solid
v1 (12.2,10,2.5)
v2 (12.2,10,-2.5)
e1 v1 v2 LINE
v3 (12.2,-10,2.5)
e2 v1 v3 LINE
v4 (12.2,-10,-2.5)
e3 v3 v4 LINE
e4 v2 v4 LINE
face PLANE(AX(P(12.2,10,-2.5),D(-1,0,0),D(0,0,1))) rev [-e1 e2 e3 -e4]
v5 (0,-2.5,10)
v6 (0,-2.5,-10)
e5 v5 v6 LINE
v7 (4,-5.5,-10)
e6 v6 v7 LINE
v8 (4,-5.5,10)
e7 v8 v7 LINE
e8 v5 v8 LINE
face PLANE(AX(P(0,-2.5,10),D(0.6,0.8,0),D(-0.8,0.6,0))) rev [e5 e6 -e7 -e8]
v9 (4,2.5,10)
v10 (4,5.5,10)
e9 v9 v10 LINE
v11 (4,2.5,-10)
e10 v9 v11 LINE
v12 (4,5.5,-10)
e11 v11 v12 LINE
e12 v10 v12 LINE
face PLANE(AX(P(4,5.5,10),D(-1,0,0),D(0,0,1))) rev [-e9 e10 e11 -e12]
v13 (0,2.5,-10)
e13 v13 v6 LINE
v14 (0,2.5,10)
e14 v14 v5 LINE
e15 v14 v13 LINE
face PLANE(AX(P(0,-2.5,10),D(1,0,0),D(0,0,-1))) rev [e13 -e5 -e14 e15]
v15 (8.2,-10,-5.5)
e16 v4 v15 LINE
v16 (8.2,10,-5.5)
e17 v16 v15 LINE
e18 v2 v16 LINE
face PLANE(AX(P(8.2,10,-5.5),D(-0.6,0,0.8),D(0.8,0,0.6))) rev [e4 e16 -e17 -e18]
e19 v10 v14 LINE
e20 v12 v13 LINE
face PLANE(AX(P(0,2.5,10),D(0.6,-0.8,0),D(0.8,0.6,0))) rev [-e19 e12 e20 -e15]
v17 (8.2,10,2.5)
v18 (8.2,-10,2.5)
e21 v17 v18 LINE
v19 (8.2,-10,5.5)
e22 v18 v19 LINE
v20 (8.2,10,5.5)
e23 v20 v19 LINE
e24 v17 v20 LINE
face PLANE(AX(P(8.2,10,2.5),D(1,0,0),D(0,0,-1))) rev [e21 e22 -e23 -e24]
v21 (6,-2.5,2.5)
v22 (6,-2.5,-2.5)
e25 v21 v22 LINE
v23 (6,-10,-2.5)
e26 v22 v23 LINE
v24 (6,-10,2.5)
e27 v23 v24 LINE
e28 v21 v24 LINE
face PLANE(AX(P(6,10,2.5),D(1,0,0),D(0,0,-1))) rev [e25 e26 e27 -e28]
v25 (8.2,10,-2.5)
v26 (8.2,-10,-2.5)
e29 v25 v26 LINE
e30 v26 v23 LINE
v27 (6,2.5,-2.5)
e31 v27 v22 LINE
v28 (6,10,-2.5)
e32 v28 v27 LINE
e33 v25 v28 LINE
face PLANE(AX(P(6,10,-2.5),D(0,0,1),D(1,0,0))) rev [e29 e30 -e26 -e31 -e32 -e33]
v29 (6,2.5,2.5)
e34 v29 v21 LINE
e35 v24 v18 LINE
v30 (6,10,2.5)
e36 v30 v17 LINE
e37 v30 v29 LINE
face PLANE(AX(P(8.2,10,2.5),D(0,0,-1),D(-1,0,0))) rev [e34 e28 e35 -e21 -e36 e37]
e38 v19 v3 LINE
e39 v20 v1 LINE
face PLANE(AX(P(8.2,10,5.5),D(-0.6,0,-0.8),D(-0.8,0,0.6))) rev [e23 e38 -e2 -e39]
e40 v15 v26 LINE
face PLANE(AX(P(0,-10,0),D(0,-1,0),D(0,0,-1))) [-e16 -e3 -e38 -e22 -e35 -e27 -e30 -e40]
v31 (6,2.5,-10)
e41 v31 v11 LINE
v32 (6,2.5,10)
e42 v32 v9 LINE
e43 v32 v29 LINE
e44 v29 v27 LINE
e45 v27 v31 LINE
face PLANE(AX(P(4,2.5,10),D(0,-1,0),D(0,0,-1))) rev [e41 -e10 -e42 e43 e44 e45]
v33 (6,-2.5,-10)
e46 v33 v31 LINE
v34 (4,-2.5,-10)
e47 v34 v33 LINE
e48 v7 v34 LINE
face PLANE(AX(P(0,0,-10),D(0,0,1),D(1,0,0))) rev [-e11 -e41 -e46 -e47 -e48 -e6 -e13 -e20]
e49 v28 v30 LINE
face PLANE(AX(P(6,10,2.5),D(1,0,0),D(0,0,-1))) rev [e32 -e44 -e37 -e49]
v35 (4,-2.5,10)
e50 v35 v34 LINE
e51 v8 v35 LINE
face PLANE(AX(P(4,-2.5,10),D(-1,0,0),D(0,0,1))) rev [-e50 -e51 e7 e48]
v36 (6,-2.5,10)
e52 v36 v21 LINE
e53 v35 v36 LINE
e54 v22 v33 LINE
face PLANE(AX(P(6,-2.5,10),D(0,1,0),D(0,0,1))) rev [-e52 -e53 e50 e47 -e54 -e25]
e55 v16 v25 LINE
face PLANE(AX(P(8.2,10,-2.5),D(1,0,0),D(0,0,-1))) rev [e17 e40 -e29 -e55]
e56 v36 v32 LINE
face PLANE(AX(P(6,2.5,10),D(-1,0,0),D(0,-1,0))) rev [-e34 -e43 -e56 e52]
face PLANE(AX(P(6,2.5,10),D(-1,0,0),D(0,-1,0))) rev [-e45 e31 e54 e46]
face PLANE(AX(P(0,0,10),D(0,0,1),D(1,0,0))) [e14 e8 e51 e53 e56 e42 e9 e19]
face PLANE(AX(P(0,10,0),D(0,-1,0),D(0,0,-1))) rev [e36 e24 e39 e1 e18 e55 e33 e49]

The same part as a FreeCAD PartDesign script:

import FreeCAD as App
import Part
import Sketcher
Q = App.Units.Quantity

doc = App.newDocument("Part")
params = doc.addObject("Spreadsheet::Sheet", "Params")
for row, (alias, value) in enumerate([
    ("sketch1_width", "2 mm"),
    ("sketch1_height", "5 mm"),
    ("sketch1_height2", "3 mm"),
    ("sketch1_length", "5 mm"),
    ("pad1_length", "20 mm"),
    ("sketch2_height", "5 mm"),
    ("sketch2_height2", "3 mm"),
    ("sketch2_length", "5 mm"),
    ("sketch2_width", "2.2 mm"),
    ("pad2_length", "20 mm"),
], start=1):
    params.set(f"A{row}", alias)
    params.set(f"B{row}", "=" + value)
    params.setAlias(f"B{row}", alias)

body = doc.addObject("PartDesign::Body", "Body")

# Sketch on XY plane
sketch1 = body.newObject("Sketcher::SketchObject", "Sketch")
sketch1.AttachmentSupport = (doc.getObject("XY_Plane"), [""])
sketch1.MapMode = "FlatFace"
sketch1.addGeometry([
    Part.LineSegment(App.Vector(0, 2.5, 0), App.Vector(0, -2.5, 0)),  # 0
    Part.LineSegment(App.Vector(0, -2.5, 0), App.Vector(4, -5.5, 0)),  # 1
    Part.LineSegment(App.Vector(4, -5.5, 0), App.Vector(4, -2.5, 0)),  # 2
    Part.LineSegment(App.Vector(4, -2.5, 0), App.Vector(6, -2.5, 0)),  # 3
    Part.LineSegment(App.Vector(6, -2.5, 0), App.Vector(6, 2.5, 0)),  # 4
    Part.LineSegment(App.Vector(6, 2.5, 0), App.Vector(4, 2.5, 0)),  # 5
    Part.LineSegment(App.Vector(4, 2.5, 0), App.Vector(4, 5.5, 0)),  # 6
    Part.LineSegment(App.Vector(4, 5.5, 0), App.Vector(0, 2.5, 0)),  # 7
], False)
sketch1.addConstraint([
    Sketcher.Constraint("Coincident", 0, 2, 1, 1),
    Sketcher.Constraint("Coincident", 1, 2, 2, 1),
    Sketcher.Constraint("Coincident", 2, 2, 3, 1),
    Sketcher.Constraint("Coincident", 3, 2, 4, 1),
    Sketcher.Constraint("Coincident", 4, 2, 5, 1),
    Sketcher.Constraint("Coincident", 5, 2, 6, 1),
    Sketcher.Constraint("Coincident", 6, 2, 7, 1),
    Sketcher.Constraint("Coincident", 7, 2, 0, 1),
    Sketcher.Constraint("Vertical", 0),
    Sketcher.Constraint("Vertical", 2),
    Sketcher.Constraint("Horizontal", 3),
    Sketcher.Constraint("Vertical", 4),
    Sketcher.Constraint("Horizontal", 5),
    Sketcher.Constraint("Vertical", 6),
    Sketcher.Constraint("Symmetric", 0, 2, 7, 2, -1, 1),
    Sketcher.Constraint("Symmetric", 2, 2, 5, 2, -1),
    Sketcher.Constraint("Horizontal", 0, 2, 2, 2),
    Sketcher.Constraint("Equal", 2, 6),
    Sketcher.Constraint("DistanceX", 3, 1, 3, 2, Q("2 mm")),
    Sketcher.Constraint("DistanceY", 0, 2, 0, 1, Q("5 mm")),
    Sketcher.Constraint("DistanceY", 2, 1, 2, 2, Q("3 mm")),
    Sketcher.Constraint("Distance", 1, Q("5 mm")),
])
sketch1.setExpression("Constraints[18]", "Params.sketch1_width")
sketch1.setExpression("Constraints[19]", "Params.sketch1_height")
sketch1.setExpression("Constraints[20]", "Params.sketch1_height2")
sketch1.setExpression("Constraints[21]", "Params.sketch1_length")
pad1 = body.newObject("PartDesign::Pad", "Pad")
pad1.Profile = sketch1
pad1.setExpression("Length", "Params.pad1_length")
pad1.Midplane = True

# Sketch on XZ plane
sketch2 = body.newObject("Sketcher::SketchObject", "Sketch001")
sketch2.AttachmentSupport = (doc.getObject("XZ_Plane"), [""])
sketch2.MapMode = "FlatFace"
sketch2.addGeometry([
    Part.LineSegment(App.Vector(8.2, -2.5, 0), App.Vector(6, -2.5, 0)),  # 0
    Part.LineSegment(App.Vector(6, -2.5, 0), App.Vector(6, 2.5, 0)),  # 1
    Part.LineSegment(App.Vector(6, 2.5, 0), App.Vector(8.2, 2.5, 0)),  # 2
    Part.LineSegment(App.Vector(8.2, 2.5, 0), App.Vector(8.2, 5.5, 0)),  # 3
    Part.LineSegment(App.Vector(8.2, 5.5, 0), App.Vector(12.2, 2.5, 0)),  # 4
    Part.LineSegment(App.Vector(12.2, 2.5, 0), App.Vector(12.2, -2.5, 0)),  # 5
    Part.LineSegment(App.Vector(12.2, -2.5, 0), App.Vector(8.2, -5.5, 0)),  # 6
    Part.LineSegment(App.Vector(8.2, -5.5, 0), App.Vector(8.2, -2.5, 0)),  # 7
], False)
sketch2.addConstraint([
    Sketcher.Constraint("Coincident", 0, 2, 1, 1),
    Sketcher.Constraint("Coincident", 1, 2, 2, 1),
    Sketcher.Constraint("Coincident", 2, 2, 3, 1),
    Sketcher.Constraint("Coincident", 3, 2, 4, 1),
    Sketcher.Constraint("Coincident", 4, 2, 5, 1),
    Sketcher.Constraint("Coincident", 5, 2, 6, 1),
    Sketcher.Constraint("Coincident", 6, 2, 7, 1),
    Sketcher.Constraint("Coincident", 7, 2, 0, 1),
    Sketcher.Constraint("Horizontal", 0),
    Sketcher.Constraint("Vertical", 1),
    Sketcher.Constraint("Horizontal", 2),
    Sketcher.Constraint("Vertical", 3),
    Sketcher.Constraint("Vertical", 5),
    Sketcher.Constraint("Vertical", 7),
    Sketcher.Constraint("Symmetric", 3, 2, 6, 2, -1),
    Sketcher.Constraint("Horizontal", 2, 2, 4, 2),
    Sketcher.Constraint("Horizontal", 0, 2, 5, 2),
    Sketcher.Constraint("Equal", 3, 7),
    Sketcher.Constraint("DistanceY", 1, 1, 1, 2, Q("5 mm")),
    Sketcher.Constraint("DistanceY", 3, 1, 3, 2, Q("3 mm")),
    Sketcher.Constraint("Distance", 4, Q("5 mm")),
    Sketcher.Constraint("DistanceX", 0, 2, 0, 1, Q("2.2 mm")),
    Sketcher.Constraint("DistanceX", -1, 1, 0, 2, Q("6 mm")),
])
sketch2.setExpression("Constraints[18]", "Params.sketch2_height")
sketch2.setExpression("Constraints[19]", "Params.sketch2_height2")
sketch2.setExpression("Constraints[20]", "Params.sketch2_length")
sketch2.setExpression("Constraints[21]", "Params.sketch2_width")
pad2 = body.newObject("PartDesign::Pad", "Pad001")
pad2.Profile = sketch2
pad2.setExpression("Length", "Params.pad2_length")
pad2.Midplane = True

doc.recompute()
